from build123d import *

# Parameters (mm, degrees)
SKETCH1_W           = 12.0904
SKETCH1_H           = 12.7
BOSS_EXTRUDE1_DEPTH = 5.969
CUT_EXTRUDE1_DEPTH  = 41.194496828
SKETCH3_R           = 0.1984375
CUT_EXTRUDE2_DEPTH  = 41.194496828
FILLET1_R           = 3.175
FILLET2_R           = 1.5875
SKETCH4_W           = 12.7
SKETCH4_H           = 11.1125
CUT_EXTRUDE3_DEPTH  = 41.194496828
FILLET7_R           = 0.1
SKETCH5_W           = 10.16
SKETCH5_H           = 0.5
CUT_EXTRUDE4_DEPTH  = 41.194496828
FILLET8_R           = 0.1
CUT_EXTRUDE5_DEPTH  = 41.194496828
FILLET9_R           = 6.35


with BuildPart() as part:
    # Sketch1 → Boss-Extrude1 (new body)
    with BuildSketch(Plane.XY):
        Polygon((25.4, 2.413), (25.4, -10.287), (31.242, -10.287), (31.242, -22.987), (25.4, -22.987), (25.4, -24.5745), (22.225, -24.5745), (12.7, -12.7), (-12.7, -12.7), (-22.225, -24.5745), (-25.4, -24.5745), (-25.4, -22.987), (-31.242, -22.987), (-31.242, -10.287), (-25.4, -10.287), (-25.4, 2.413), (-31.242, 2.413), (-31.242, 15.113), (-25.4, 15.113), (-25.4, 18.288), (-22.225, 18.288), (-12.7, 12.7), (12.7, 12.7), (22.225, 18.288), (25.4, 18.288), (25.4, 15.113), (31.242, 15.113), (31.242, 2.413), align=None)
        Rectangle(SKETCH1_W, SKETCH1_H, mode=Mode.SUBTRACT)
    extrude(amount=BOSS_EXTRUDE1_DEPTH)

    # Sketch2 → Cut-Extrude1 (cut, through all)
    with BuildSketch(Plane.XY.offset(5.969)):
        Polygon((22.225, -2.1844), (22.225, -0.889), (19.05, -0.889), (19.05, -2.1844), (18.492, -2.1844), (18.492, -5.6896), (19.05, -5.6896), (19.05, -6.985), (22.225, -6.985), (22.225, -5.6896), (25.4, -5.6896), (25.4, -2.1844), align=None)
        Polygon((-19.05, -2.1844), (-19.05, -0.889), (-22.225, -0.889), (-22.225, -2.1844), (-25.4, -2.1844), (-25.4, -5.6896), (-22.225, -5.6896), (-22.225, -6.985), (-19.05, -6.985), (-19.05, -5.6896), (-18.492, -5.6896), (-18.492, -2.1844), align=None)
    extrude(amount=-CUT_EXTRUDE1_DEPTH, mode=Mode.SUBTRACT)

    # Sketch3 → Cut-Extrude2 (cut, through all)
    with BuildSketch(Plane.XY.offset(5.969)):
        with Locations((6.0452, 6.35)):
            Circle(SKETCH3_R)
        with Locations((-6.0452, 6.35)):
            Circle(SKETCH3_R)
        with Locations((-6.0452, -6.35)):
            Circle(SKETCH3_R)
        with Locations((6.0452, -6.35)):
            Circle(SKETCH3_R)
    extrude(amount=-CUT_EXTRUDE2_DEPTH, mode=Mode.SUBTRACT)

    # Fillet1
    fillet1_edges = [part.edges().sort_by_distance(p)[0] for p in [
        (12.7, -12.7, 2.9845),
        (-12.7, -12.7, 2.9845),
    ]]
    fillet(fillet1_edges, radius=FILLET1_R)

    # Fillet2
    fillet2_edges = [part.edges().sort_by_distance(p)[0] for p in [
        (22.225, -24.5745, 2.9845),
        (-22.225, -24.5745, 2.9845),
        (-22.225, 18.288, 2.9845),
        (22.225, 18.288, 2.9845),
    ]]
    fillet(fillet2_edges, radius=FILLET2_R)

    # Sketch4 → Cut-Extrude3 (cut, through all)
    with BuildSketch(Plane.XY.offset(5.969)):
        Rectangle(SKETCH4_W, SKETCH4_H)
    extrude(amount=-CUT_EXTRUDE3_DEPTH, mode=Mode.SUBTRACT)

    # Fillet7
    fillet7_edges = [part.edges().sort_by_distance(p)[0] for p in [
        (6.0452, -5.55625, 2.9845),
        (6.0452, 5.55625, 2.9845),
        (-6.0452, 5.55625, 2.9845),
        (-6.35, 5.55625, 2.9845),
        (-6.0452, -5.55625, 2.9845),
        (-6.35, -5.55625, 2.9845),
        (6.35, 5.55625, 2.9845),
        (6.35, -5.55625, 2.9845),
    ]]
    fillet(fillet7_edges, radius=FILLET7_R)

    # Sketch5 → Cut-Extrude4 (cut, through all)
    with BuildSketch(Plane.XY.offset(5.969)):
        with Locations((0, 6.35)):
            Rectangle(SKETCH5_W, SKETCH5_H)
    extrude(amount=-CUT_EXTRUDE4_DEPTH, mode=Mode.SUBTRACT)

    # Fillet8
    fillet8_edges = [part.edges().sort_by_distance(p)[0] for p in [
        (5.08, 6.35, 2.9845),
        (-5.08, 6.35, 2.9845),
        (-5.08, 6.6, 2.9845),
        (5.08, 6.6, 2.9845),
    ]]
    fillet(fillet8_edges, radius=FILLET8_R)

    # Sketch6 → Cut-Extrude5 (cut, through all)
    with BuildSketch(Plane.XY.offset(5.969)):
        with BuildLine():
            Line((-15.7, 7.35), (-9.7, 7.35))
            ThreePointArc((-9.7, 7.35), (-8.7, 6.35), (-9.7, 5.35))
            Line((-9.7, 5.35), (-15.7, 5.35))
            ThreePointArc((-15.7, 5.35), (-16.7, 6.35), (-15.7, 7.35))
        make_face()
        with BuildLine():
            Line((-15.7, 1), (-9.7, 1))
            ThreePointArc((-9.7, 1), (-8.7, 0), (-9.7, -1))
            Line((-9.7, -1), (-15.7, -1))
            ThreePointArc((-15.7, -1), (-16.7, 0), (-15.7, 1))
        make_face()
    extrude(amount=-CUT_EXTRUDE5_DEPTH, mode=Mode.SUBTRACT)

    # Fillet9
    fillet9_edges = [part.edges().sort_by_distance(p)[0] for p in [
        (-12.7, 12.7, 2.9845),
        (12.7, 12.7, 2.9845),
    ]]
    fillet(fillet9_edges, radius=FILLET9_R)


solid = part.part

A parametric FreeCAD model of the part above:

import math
import FreeCAD as App
import Part
import Sketcher

V = App.Vector
Q = App.Units.Quantity


def edges_at(feature, points):
    """Names of the edges that pass closest to the given points."""
    edges = feature.Shape.Edges
    near = lambda p: min(range(len(edges)), key=lambda i: edges[i].distToShape(Part.Vertex(*p))[0])
    return sorted({f"Edge{near(p) + 1}" for p in points})

doc = App.newDocument("Part")
body = doc.addObject("PartDesign::Body", "Body")

# Sketch on XY plane
sketch1 = body.newObject("Sketcher::SketchObject", "Sketch")
sketch1.AttachmentSupport = (doc.getObject("XY_Plane"), [""])
sketch1.MapMode = "FlatFace"
sketch1.addGeometry([
    Part.LineSegment(V(25.4, -10.287, 0), V(25.4, 2.413, 0)),  # 0
    Part.LineSegment(V(25.4, 2.413, 0), V(31.242, 2.413, 0)),  # 1
    Part.LineSegment(V(31.242, 2.413, 0), V(31.242, 15.113, 0)),  # 2
    Part.LineSegment(V(31.242, 15.113, 0), V(25.4, 15.113, 0)),  # 3
    Part.LineSegment(V(25.4, 15.113, 0), V(25.4, 18.288, 0)),  # 4
    Part.LineSegment(V(25.4, 18.288, 0), V(22.225, 18.288, 0)),  # 5
    Part.LineSegment(V(22.225, 18.288, 0), V(12.7, 12.7, 0)),  # 6
    Part.LineSegment(V(12.7, 12.7, 0), V(-12.7, 12.7, 0)),  # 7
    Part.LineSegment(V(-12.7, 12.7, 0), V(-22.225, 18.288, 0)),  # 8
    Part.LineSegment(V(-22.225, 18.288, 0), V(-25.4, 18.288, 0)),  # 9
    Part.LineSegment(V(-25.4, 18.288, 0), V(-25.4, 15.113, 0)),  # 10
    Part.LineSegment(V(-25.4, 15.113, 0), V(-31.242, 15.113, 0)),  # 11
    Part.LineSegment(V(-31.242, 15.113, 0), V(-31.242, 2.413, 0)),  # 12
    Part.LineSegment(V(-31.242, 2.413, 0), V(-25.4, 2.413, 0)),  # 13
    Part.LineSegment(V(-25.4, 2.413, 0), V(-25.4, -10.287, 0)),  # 14
    Part.LineSegment(V(-25.4, -10.287, 0), V(-31.242, -10.287, 0)),  # 15
    Part.LineSegment(V(-31.242, -10.287, 0), V(-31.242, -22.987, 0)),  # 16
    Part.LineSegment(V(-31.242, -22.987, 0), V(-25.4, -22.987, 0)),  # 17
    Part.LineSegment(V(-25.4, -22.987, 0), V(-25.4, -24.5745, 0)),  # 18
    Part.LineSegment(V(-25.4, -24.5745, 0), V(-22.225, -24.5745, 0)),  # 19
    Part.LineSegment(V(-22.225, -24.5745, 0), V(-12.7, -12.7, 0)),  # 20
    Part.LineSegment(V(-12.7, -12.7, 0), V(12.7, -12.7, 0)),  # 21
    Part.LineSegment(V(12.7, -12.7, 0), V(22.225, -24.5745, 0)),  # 22
    Part.LineSegment(V(22.225, -24.5745, 0), V(25.4, -24.5745, 0)),  # 23
    Part.LineSegment(V(25.4, -24.5745, 0), V(25.4, -22.987, 0)),  # 24
    Part.LineSegment(V(25.4, -22.987, 0), V(31.242, -22.987, 0)),  # 25
    Part.LineSegment(V(31.242, -22.987, 0), V(31.242, -10.287, 0)),  # 26
    Part.LineSegment(V(31.242, -10.287, 0), V(25.4, -10.287, 0)),  # 27
    Part.LineSegment(V(-6.0452, -6.35, 0), V(-6.0452, 6.35, 0)),  # 28
    Part.LineSegment(V(-6.0452, 6.35, 0), V(6.0452, 6.35, 0)),  # 29
    Part.LineSegment(V(6.0452, 6.35, 0), V(6.0452, -6.35, 0)),  # 30
    Part.LineSegment(V(6.0452, -6.35, 0), V(-6.0452, -6.35, 0)),  # 31
], False)
sketch1.addConstraint([
    Sketcher.Constraint("Coincident", 0, 2, 1, 1),
    Sketcher.Constraint("Coincident", 1, 2, 2, 1),
    Sketcher.Constraint("Coincident", 2, 2, 3, 1),
    Sketcher.Constraint("Coincident", 3, 2, 4, 1),
    Sketcher.Constraint("Coincident", 4, 2, 5, 1),
    Sketcher.Constraint("Coincident", 5, 2, 6, 1),
    Sketcher.Constraint("Coincident", 6, 2, 7, 1),
    Sketcher.Constraint("Coincident", 7, 2, 8, 1),
    Sketcher.Constraint("Coincident", 8, 2, 9, 1),
    Sketcher.Constraint("Coincident", 9, 2, 10, 1),
    Sketcher.Constraint("Coincident", 10, 2, 11, 1),
    Sketcher.Constraint("Coincident", 11, 2, 12, 1),
    Sketcher.Constraint("Coincident", 12, 2, 13, 1),
    Sketcher.Constraint("Coincident", 13, 2, 14, 1),
    Sketcher.Constraint("Coincident", 14, 2, 15, 1),
    Sketcher.Constraint("Coincident", 15, 2, 16, 1),
    Sketcher.Constraint("Coincident", 16, 2, 17, 1),
    Sketcher.Constraint("Coincident", 17, 2, 18, 1),
    Sketcher.Constraint("Coincident", 18, 2, 19, 1),
    Sketcher.Constraint("Coincident", 19, 2, 20, 1),
    Sketcher.Constraint("Coincident", 20, 2, 21, 1),
    Sketcher.Constraint("Coincident", 21, 2, 22, 1),
    Sketcher.Constraint("Coincident", 22, 2, 23, 1),
    Sketcher.Constraint("Coincident", 23, 2, 24, 1),
    Sketcher.Constraint("Coincident", 24, 2, 25, 1),
    Sketcher.Constraint("Coincident", 25, 2, 26, 1),
    Sketcher.Constraint("Coincident", 26, 2, 27, 1),
    Sketcher.Constraint("Coincident", 27, 2, 0, 1),
    Sketcher.Constraint("Coincident", 28, 2, 29, 1),
    Sketcher.Constraint("Coincident", 29, 2, 30, 1),
    Sketcher.Constraint("Coincident", 30, 2, 31, 1),
    Sketcher.Constraint("Coincident", 31, 2, 28, 1),
    Sketcher.Constraint("Vertical", 0),
    Sketcher.Constraint("Horizontal", 1),
    Sketcher.Constraint("Vertical", 2),
    Sketcher.Constraint("Horizontal", 3),
    Sketcher.Constraint("Vertical", 4),
    Sketcher.Constraint("Horizontal", 5),
    Sketcher.Constraint("Horizontal", 7),
    Sketcher.Constraint("Horizontal", 9),
    Sketcher.Constraint("Vertical", 10),
    Sketcher.Constraint("Horizontal", 11),
    Sketcher.Constraint("Vertical", 12),
    Sketcher.Constraint("Horizontal", 13),
    Sketcher.Constraint("Vertical", 14),
    Sketcher.Constraint("Horizontal", 15),
    Sketcher.Constraint("Vertical", 16),
    Sketcher.Constraint("Horizontal", 17),
    Sketcher.Constraint("Vertical", 18),
    Sketcher.Constraint("Horizontal", 19),
    Sketcher.Constraint("Horizontal", 21),
    Sketcher.Constraint("Horizontal", 23),
    Sketcher.Constraint("Vertical", 24),
    Sketcher.Constraint("Horizontal", 25),
    Sketcher.Constraint("Vertical", 26),
    Sketcher.Constraint("Horizontal", 27),
    Sketcher.Constraint("Vertical", 28),
    Sketcher.Constraint("Horizontal", 29),
    Sketcher.Constraint("Vertical", 30),
    Sketcher.Constraint("Horizontal", 31),
    Sketcher.Constraint("Symmetric", 6, 2, 20, 2, -1, 1),
    Sketcher.Constraint("Symmetric", 28, 2, 30, 2, -1, 1),
    Sketcher.Constraint("Symmetric", 5, 2, 8, 2, -2),
    Sketcher.Constraint("Symmetric", 3, 2, 10, 2, -2),
    Sketcher.Constraint("Symmetric", 1, 2, 12, 2, -2),
    Sketcher.Constraint("Symmetric", 19, 2, 22, 2, -2),
    Sketcher.Constraint("Symmetric", 17, 2, 24, 2, -2),
    Sketcher.Constraint("Symmetric", 15, 2, 26, 2, -2),
    Sketcher.Constraint("Vertical", 0, 2, 3, 2),
    Sketcher.Constraint("Vertical", 10, 2, 13, 2),
    Sketcher.Constraint("Vertical", 12, 2, 15, 2),
    Sketcher.Constraint("Vertical", 14, 2, 17, 2),
    Sketcher.Constraint("Vertical", 8, 2, 19, 2),
    Sketcher.Constraint("Vertical", 7, 2, 20, 2),
    Sketcher.Constraint("Vertical", 6, 2, 21, 2),
    Sketcher.Constraint("Equal", 0, 2),
    Sketcher.Constraint("Equal", 23, 4),
    Sketcher.Constraint("Equal", 14, 16),
    Sketcher.Constraint("Equal", 26, 28),
    Sketcher.Constraint("DistanceX", 7, 2, 7, 1, Q("1 in")),
    Sketcher.Constraint("DistanceY", 0, 1, 0, 2, Q("0.5 in")),
    Sketcher.Constraint("DistanceX", -1, 1, 0, 2, Q("1 in")),
    Sketcher.Constraint("DistanceY", 21, 2, 6, 2, Q("1 in")),
    Sketcher.Constraint("DistanceX", 1, 1, 1, 2, Q("0.23 in")),
    Sketcher.Constraint("DistanceX", 5, 2, 5, 1, Q("0.125 in")),
    Sketcher.Constraint("DistanceX", 29, 1, 29, 2, Q("0.476 in")),
    Sketcher.Constraint("DistanceY", 18, 2, 18, 1, Q("0.0625 in")),
    Sketcher.Constraint("DistanceY", -1, 1, 4, 2, Q("0.72 in")),
])
pad1 = body.newObject("PartDesign::Pad", "Pad")
pad1.Profile = sketch1
pad1.Length = Q("0.235 in")

# Sketch on XY plane
sketch2 = body.newObject("Sketcher::SketchObject", "Sketch001")
sketch2.AttachmentSupport = (doc.getObject("XY_Plane"), [""])
sketch2.MapMode = "FlatFace"
sketch2.AttachmentOffset = App.Placement(V(0, 0, 0.235 * 25.4), App.Rotation())
sketch2.addGeometry([
    Part.LineSegment(V(22.225, -2.1844, 0), V(22.225, -0.889, 0)),  # 0
    Part.LineSegment(V(22.225, -0.889, 0), V(19.05, -0.889, 0)),  # 1
    Part.LineSegment(V(19.05, -0.889, 0), V(19.05, -2.1844, 0)),  # 2
    Part.LineSegment(V(19.05, -2.1844, 0), V(18.492, -2.1844, 0)),  # 3
    Part.LineSegment(V(18.492, -2.1844, 0), V(18.492, -5.6896, 0)),  # 4
    Part.LineSegment(V(18.492, -5.6896, 0), V(19.05, -5.6896, 0)),  # 5
    Part.LineSegment(V(19.05, -5.6896, 0), V(19.05, -6.985, 0)),  # 6
    Part.LineSegment(V(19.05, -6.985, 0), V(22.225, -6.985, 0)),  # 7
    Part.LineSegment(V(22.225, -6.985, 0), V(22.225, -5.6896, 0)),  # 8
    Part.LineSegment(V(22.225, -5.6896, 0), V(25.4, -5.6896, 0)),  # 9
    Part.LineSegment(V(25.4, -5.6896, 0), V(25.4, -2.1844, 0)),  # 10
    Part.LineSegment(V(25.4, -2.1844, 0), V(22.225, -2.1844, 0)),  # 11
    Part.LineSegment(V(-19.05, -2.1844, 0), V(-19.05, -0.889, 0)),  # 12
    Part.LineSegment(V(-19.05, -0.889, 0), V(-22.225, -0.889, 0)),  # 13
    Part.LineSegment(V(-22.225, -0.889, 0), V(-22.225, -2.1844, 0)),  # 14
    Part.LineSegment(V(-22.225, -2.1844, 0), V(-25.4, -2.1844, 0)),  # 15
    Part.LineSegment(V(-25.4, -2.1844, 0), V(-25.4, -5.6896, 0)),  # 16
    Part.LineSegment(V(-25.4, -5.6896, 0), V(-22.225, -5.6896, 0)),  # 17
    Part.LineSegment(V(-22.225, -5.6896, 0), V(-22.225, -6.985, 0)),  # 18
    Part.LineSegment(V(-22.225, -6.985, 0), V(-19.05, -6.985, 0)),  # 19
    Part.LineSegment(V(-19.05, -6.985, 0), V(-19.05, -5.6896, 0)),  # 20
    Part.LineSegment(V(-19.05, -5.6896, 0), V(-18.492, -5.6896, 0)),  # 21
    Part.LineSegment(V(-18.492, -5.6896, 0), V(-18.492, -2.1844, 0)),  # 22
    Part.LineSegment(V(-18.492, -2.1844, 0), V(-19.05, -2.1844, 0)),  # 23
], False)
sketch2.addConstraint([
    Sketcher.Constraint("Coincident", 0, 2, 1, 1),
    Sketcher.Constraint("Coincident", 1, 2, 2, 1),
    Sketcher.Constraint("Coincident", 2, 2, 3, 1),
    Sketcher.Constraint("Coincident", 3, 2, 4, 1),
    Sketcher.Constraint("Coincident", 4, 2, 5, 1),
    Sketcher.Constraint("Coincident", 5, 2, 6, 1),
    Sketcher.Constraint("Coincident", 6, 2, 7, 1),
    Sketcher.Constraint("Coincident", 7, 2, 8, 1),
    Sketcher.Constraint("Coincident", 8, 2, 9, 1),
    Sketcher.Constraint("Coincident", 9, 2, 10, 1),
    Sketcher.Constraint("Coincident", 10, 2, 11, 1),
    Sketcher.Constraint("Coincident", 11, 2, 0, 1),
    Sketcher.Constraint("Coincident", 12, 2, 13, 1),
    Sketcher.Constraint("Coincident", 13, 2, 14, 1),
    Sketcher.Constraint("Coincident", 14, 2, 15, 1),
    Sketcher.Constraint("Coincident", 15, 2, 16, 1),
    Sketcher.Constraint("Coincident", 16, 2, 17, 1),
    Sketcher.Constraint("Coincident", 17, 2, 18, 1),
    Sketcher.Constraint("Coincident", 18, 2, 19, 1),
    Sketcher.Constraint("Coincident", 19, 2, 20, 1),
    Sketcher.Constraint("Coincident", 20, 2, 21, 1),
    Sketcher.Constraint("Coincident", 21, 2, 22, 1),
    Sketcher.Constraint("Coincident", 22, 2, 23, 1),
    Sketcher.Constraint("Coincident", 23, 2, 12, 1),
    Sketcher.Constraint("Vertical", 0),
    Sketcher.Constraint("Horizontal", 1),
    Sketcher.Constraint("Vertical", 2),
    Sketcher.Constraint("Horizontal", 3),
    Sketcher.Constraint("Vertical", 4),
    Sketcher.Constraint("Horizontal", 5),
    Sketcher.Constraint("Vertical", 6),
    Sketcher.Constraint("Horizontal", 7),
    Sketcher.Constraint("Vertical", 8),
    Sketcher.Constraint("Horizontal", 9),
    Sketcher.Constraint("Vertical", 10),
    Sketcher.Constraint("Horizontal", 11),
    Sketcher.Constraint("Vertical", 12),
    Sketcher.Constraint("Horizontal", 13),
    Sketcher.Constraint("Vertical", 14),
    Sketcher.Constraint("Horizontal", 15),
    Sketcher.Constraint("Vertical", 16),
    Sketcher.Constraint("Horizontal", 17),
    Sketcher.Constraint("Vertical", 18),
    Sketcher.Constraint("Horizontal", 19),
    Sketcher.Constraint("Vertical", 20),
    Sketcher.Constraint("Horizontal", 21),
    Sketcher.Constraint("Vertical", 22),
    Sketcher.Constraint("Horizontal", 23),
    Sketcher.Constraint("Symmetric", 1, 2, 12, 2, -2),
    Sketcher.Constraint("Symmetric", 11, 2, 14, 2, -2),
    Sketcher.Constraint("Symmetric", 9, 2, 16, 2, -2),
    Sketcher.Constraint("Symmetric", 7, 2, 18, 2, -2),
    Sketcher.Constraint("Symmetric", 5, 2, 20, 2, -2),
    Sketcher.Constraint("Symmetric", 3, 2, 22, 2, -2),
    Sketcher.Constraint("Horizontal", 5, 2, 8, 2),
    Sketcher.Constraint("Horizontal", 3, 2, 10, 2),
    Sketcher.Constraint("Vertical", 2, 2, 5, 2),
    Sketcher.Constraint("Vertical", 0, 2, 7, 2),
    Sketcher.Constraint("Equal", 7, 9),
    Sketcher.Constraint("Equal", 2, 6),
    Sketcher.Constraint("DistanceX", -1, 1, 9, 2, Q("1 in")),
    Sketcher.Constraint("DistanceX", 12, 2, 1, 2, Q("1.5 in")),
    Sketcher.Constraint("DistanceY", 0, 1, 0, 2, Q("0.051 in")),
    Sketcher.Constraint("DistanceY", 4, 2, 4, 1, Q("0.138 in")),
    Sketcher.Constraint("DistanceY", 0, 2, -1, 1, Q("0.035 in")),
    Sketcher.Constraint("DistanceX", 3, 2, 3, 1, 0.558),
])
pocket1 = body.newObject("PartDesign::Pocket", "Pocket")
pocket1.Profile = sketch2
pocket1.Type = "ThroughAll"

# Sketch on XY plane
sketch3 = body.newObject("Sketcher::SketchObject", "Sketch002")
sketch3.AttachmentSupport = (doc.getObject("XY_Plane"), [""])
sketch3.MapMode = "FlatFace"
sketch3.AttachmentOffset = App.Placement(V(0, 0, 0.235 * 25.4), App.Rotation())
sketch3.addGeometry([
    Part.Circle(V(6.0452, 6.35, 0), V(0, 0, 1), 0.198437),
    Part.Circle(V(-6.0452, 6.35, 0), V(0, 0, 1), 0.198437),
    Part.Circle(V(-6.0452, -6.35, 0), V(0, 0, 1), 0.198437),
    Part.Circle(V(6.0452, -6.35, 0), V(0, 0, 1), 0.198437),
], False)
sketch3.addConstraint([
    Sketcher.Constraint("Equal", 0, 1),
    Sketcher.Constraint("Equal", 1, 2),
    Sketcher.Constraint("Equal", 2, 3),
    Sketcher.Constraint("Symmetric", 0, 3, 2, 3, -1, 1),
    Sketcher.Constraint("Symmetric", 1, 3, 3, 3, -1, 1),
    Sketcher.Constraint("Symmetric", 0, 3, 1, 3, -2),
    Sketcher.Constraint("Diameter", 0, Q("0.015625 in")),
    Sketcher.Constraint("DistanceY", 2, 3, 1, 3, Q("0.5 in")),
    Sketcher.Constraint("DistanceX", -1, 1, 0, 3, Q("0.238 in")),
])
pocket2 = body.newObject("PartDesign::Pocket", "Pocket001")
pocket2.Profile = sketch3
pocket2.Type = "ThroughAll"
doc.recompute()

fillet = body.newObject("PartDesign::Fillet", "Fillet")
fillet.Base = (pocket2, edges_at(pocket2, [(12.7, -12.7, 2.985), (-12.7, -12.7, 2.985)]))
fillet.Radius = Q("0.125 in")
doc.recompute()

fillet2 = body.newObject("PartDesign::Fillet", "Fillet001")
fillet2.Base = (fillet, edges_at(fillet, [
    (22.225, -24.575, 2.985),
    (-22.225, -24.575, 2.985),
    (-22.225, 18.288, 2.985),
    (22.225, 18.288, 2.985),
]))
fillet2.Radius = Q("0.0625 in")

# Sketch on XY plane
sketch4 = body.newObject("Sketcher::SketchObject", "Sketch003")
sketch4.AttachmentSupport = (doc.getObject("XY_Plane"), [""])
sketch4.MapMode = "FlatFace"
sketch4.AttachmentOffset = App.Placement(V(0, 0, 0.235 * 25.4), App.Rotation())
sketch4.addGeometry([
    Part.LineSegment(V(-6.35, 5.55625, 0), V(-6.35, -5.55625, 0)),
    Part.LineSegment(V(-6.35, -5.55625, 0), V(6.35, -5.55625, 0)),
    Part.LineSegment(V(6.35, -5.55625, 0), V(6.35, 5.55625, 0)),
    Part.LineSegment(V(6.35, 5.55625, 0), V(-6.35, 5.55625, 0)),
], False)
sketch4.addConstraint([
    Sketcher.Constraint("Coincident", 0, 2, 1, 1),
    Sketcher.Constraint("Coincident", 1, 2, 2, 1),
    Sketcher.Constraint("Coincident", 2, 2, 3, 1),
    Sketcher.Constraint("Coincident", 3, 2, 0, 1),
    Sketcher.Constraint("Vertical", 0),
    Sketcher.Constraint("Horizontal", 1),
    Sketcher.Constraint("Vertical", 2),
    Sketcher.Constraint("Horizontal", 3),
    Sketcher.Constraint("Symmetric", 0, 2, 2, 2, -1, 1),
    Sketcher.Constraint("DistanceX", 1, 1, 1, 2, Q("0.5 in")),
    Sketcher.Constraint("DistanceY", 0, 2, 0, 1, Q("0.4375 in")),
])
pocket3 = body.newObject("PartDesign::Pocket", "Pocket002")
pocket3.Profile = sketch4
pocket3.Type = "ThroughAll"
doc.recompute()

fillet3 = body.newObject("PartDesign::Fillet", "Fillet002")
fillet3.Base = (pocket3, edges_at(pocket3, [
    (6.045, -5.556, 2.985),
    (6.045, 5.556, 2.985),
    (-6.045, 5.556, 2.985),
    (-6.35, 5.556, 2.985),
    (-6.045, -5.556, 2.985),
    (-6.35, -5.556, 2.985),
    (6.35, 5.556, 2.985),
    (6.35, -5.556, 2.985),
]))
fillet3.Radius = 0.1

# Sketch on XY plane
sketch5 = body.newObject("Sketcher::SketchObject", "Sketch004")
sketch5.AttachmentSupport = (doc.getObject("XY_Plane"), [""])
sketch5.MapMode = "FlatFace"
sketch5.AttachmentOffset = App.Placement(V(0, 0, 0.235 * 25.4), App.Rotation())
sketch5.addGeometry([
    Part.LineSegment(V(-5.08, 6.6, 0), V(-5.08, 6.1, 0)),
    Part.LineSegment(V(-5.08, 6.1, 0), V(5.08, 6.1, 0)),
    Part.LineSegment(V(5.08, 6.1, 0), V(5.08, 6.6, 0)),
    Part.LineSegment(V(5.08, 6.6, 0), V(-5.08, 6.6, 0)),
], False)
sketch5.addConstraint([
    Sketcher.Constraint("Coincident", 0, 2, 1, 1),
    Sketcher.Constraint("Coincident", 1, 2, 2, 1),
    Sketcher.Constraint("Coincident", 2, 2, 3, 1),
    Sketcher.Constraint("Coincident", 3, 2, 0, 1),
    Sketcher.Constraint("Vertical", 0),
    Sketcher.Constraint("Horizontal", 1),
    Sketcher.Constraint("Vertical", 2),
    Sketcher.Constraint("Horizontal", 3),
    Sketcher.Constraint("DistanceX", 1, 1, 1, 2, Q("0.4 in")),
    Sketcher.Constraint("DistanceX", 0, 2, -1, 1, Q("0.2 in")),
    Sketcher.Constraint("DistanceY", 0, 2, 0, 1, 0.5),
    Sketcher.Constraint("DistanceY", -1, 1, 0, 2, 6.1),
])
pocket4 = body.newObject("PartDesign::Pocket", "Pocket003")
pocket4.Profile = sketch5
pocket4.Type = "ThroughAll"
doc.recompute()

fillet4 = body.newObject("PartDesign::Fillet", "Fillet003")
fillet4.Base = (pocket4, edges_at(pocket4, [
    (5.08, 6.35, 2.985),
    (-5.08, 6.35, 2.985),
    (-5.08, 6.6, 2.985),
    (5.08, 6.6, 2.985),
]))
fillet4.Radius = 0.1

# Sketch on XY plane
sketch6 = body.newObject("Sketcher::SketchObject", "Sketch005")
sketch6.AttachmentSupport = (doc.getObject("XY_Plane"), [""])
sketch6.MapMode = "FlatFace"
sketch6.AttachmentOffset = App.Placement(V(0, 0, 0.235 * 25.4), App.Rotation())
sketch6.addGeometry([
    Part.LineSegment(V(-9.7, 7.35, 0), V(-15.7, 7.35, 0)),  # 0
    Part.ArcOfCircle(Part.Circle(V(-15.7, 6.35, 0), V(0, 0, 1), 1), math.radians(90), math.radians(270)),  # 1
    Part.LineSegment(V(-15.7, 5.35, 0), V(-9.7, 5.35, 0)),  # 2
    Part.ArcOfCircle(Part.Circle(V(-9.7, 6.35, 0), V(0, 0, 1), 1), math.radians(-90), math.radians(90)),  # 3
    Part.LineSegment(V(-9.7, 1, 0), V(-15.7, 1, 0)),  # 4
    Part.ArcOfCircle(Part.Circle(V(-15.7, 0, 0), V(0, 0, 1), 1), math.radians(90), math.radians(270)),  # 5
    Part.LineSegment(V(-15.7, -1, 0), V(-9.7, -1, 0)),  # 6
    Part.ArcOfCircle(Part.Circle(V(-9.7, 0, 0), V(0, 0, 1), 1), math.radians(-90), math.radians(90)),  # 7
], False)
sketch6.addConstraint([
    Sketcher.Constraint("Tangent", 0, 2, 1, 1),
    Sketcher.Constraint("Tangent", 1, 2, 2, 1),
    Sketcher.Constraint("Tangent", 2, 2, 3, 1),
    Sketcher.Constraint("Tangent", 3, 2, 0, 1),
    Sketcher.Constraint("Tangent", 4, 2, 5, 1),
    Sketcher.Constraint("Tangent", 5, 2, 6, 1),
    Sketcher.Constraint("Tangent", 6, 2, 7, 1),
    Sketcher.Constraint("Tangent", 7, 2, 4, 1),
    Sketcher.Constraint("Horizontal", 0),
    Sketcher.Constraint("Horizontal", 2),
    Sketcher.Constraint("Horizontal", 4),
    Sketcher.Constraint("Horizontal", 6),
    Sketcher.Constraint("Equal", 3, 5),
    Sketcher.Constraint("PointOnObject", 5, 3, -1),
    Sketcher.Constraint("Vertical", 1, 3, 5, 3),
    Sketcher.Constraint("Vertical", 3, 3, 7, 3),
    Sketcher.Constraint("DistanceY", -1, 1, 1, 3, Q("0.25 in")),
    Sketcher.Constraint("Radius", 1, 1.0),
    Sketcher.Constraint("DistanceX", 0, 2, 0, 1, 6.0),
    Sketcher.Constraint("DistanceX", 1, 3, -1, 1, 15.7),
])
pocket5 = body.newObject("PartDesign::Pocket", "Pocket004")
pocket5.Profile = sketch6
pocket5.Type = "ThroughAll"
doc.recompute()

fillet5 = body.newObject("PartDesign::Fillet", "Fillet004")
fillet5.Base = (pocket5, edges_at(pocket5, [(-12.7, 12.7, 2.985), (12.7, 12.7, 2.985)]))
fillet5.Radius = Q("0.25 in")

doc.recompute()
